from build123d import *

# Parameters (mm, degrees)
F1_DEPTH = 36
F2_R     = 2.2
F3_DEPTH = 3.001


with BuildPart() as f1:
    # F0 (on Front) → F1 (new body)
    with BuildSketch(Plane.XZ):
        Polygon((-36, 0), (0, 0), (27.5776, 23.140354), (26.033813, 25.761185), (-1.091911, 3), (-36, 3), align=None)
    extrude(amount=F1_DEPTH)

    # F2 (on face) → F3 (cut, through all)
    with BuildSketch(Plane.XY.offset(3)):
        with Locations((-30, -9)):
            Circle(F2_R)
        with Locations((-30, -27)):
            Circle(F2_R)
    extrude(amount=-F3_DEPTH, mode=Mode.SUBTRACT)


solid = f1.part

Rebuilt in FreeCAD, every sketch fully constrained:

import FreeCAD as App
import Part
import Sketcher
Q = App.Units.Quantity

doc = App.newDocument("Part")
body = doc.addObject("PartDesign::Body", "Body")

sketch1 = body.newObject("Sketcher::SketchObject", "Sketch")
sketch1.AttachmentSupport = (doc.getObject("XZ_Plane"), [""])
sketch1.MapMode = "FlatFace"
sketch1.addGeometry([
    Part.LineSegment(App.Vector(-36, 0, 0), App.Vector(0, 0, 0)),
    Part.LineSegment(App.Vector(0, 0, 0), App.Vector(27.5776, 23.140354, 0)),
    Part.LineSegment(App.Vector(27.5776, 23.140354, 0), App.Vector(26.033813, 25.761185, 0)),
    Part.LineSegment(App.Vector(26.033813, 25.761185, 0), App.Vector(-1.091911, 3, 0)),
    Part.LineSegment(App.Vector(-1.091911, 3, 0), App.Vector(-36, 3, 0)),
    Part.LineSegment(App.Vector(-36, 3, 0), App.Vector(-36, 0, 0)),
], False)
sketch1.addConstraint([
    Sketcher.Constraint("Coincident", 0, 2, 1, 1),
    Sketcher.Constraint("Coincident", 1, 2, 2, 1),
    Sketcher.Constraint("Coincident", 2, 2, 3, 1),
    Sketcher.Constraint("Coincident", 3, 2, 4, 1),
    Sketcher.Constraint("Coincident", 4, 2, 5, 1),
    Sketcher.Constraint("Coincident", 5, 2, 0, 1),
    Sketcher.Constraint("Horizontal", 0),
    Sketcher.Constraint("Horizontal", 4),
    Sketcher.Constraint("Vertical", 5),
    Sketcher.Constraint("Coincident", 0, 2, -1, 1),
    Sketcher.Constraint("Parallel", 1, 3),
    Sketcher.Constraint("DistanceX", 0, 1, 0, 2, 36.0),
    Sketcher.Constraint("DistanceY", 5, 2, 5, 1, 3.0),
    Sketcher.Constraint("Angle", 1, Q("40 deg")),
    Sketcher.Constraint("Distance", 1, 36.0),
    Sketcher.Constraint("Angle", 2, Q("120.499993 deg")),
    Sketcher.Constraint("DistanceX", 4, 2, 4, 1, 34.908089),
])
pad1 = body.newObject("PartDesign::Pad", "Pad")
pad1.Profile = sketch1
pad1.Length = 36

sketch2 = body.newObject("Sketcher::SketchObject", "Sketch001")
sketch2.AttachmentSupport = (doc.getObject("XY_Plane"), [""])
sketch2.MapMode = "FlatFace"
sketch2.AttachmentOffset = App.Placement(App.Vector(0, 0, 3), App.Rotation())
sketch2.addGeometry([
    Part.Circle(App.Vector(-30, -9, 0), App.Vector(0, 0, 1), 2.2),
    Part.Circle(App.Vector(-30, -27, 0), App.Vector(0, 0, 1), 2.2),
], False)
sketch2.addConstraint([
    Sketcher.Constraint("Equal", 0, 1),
    Sketcher.Constraint("Vertical", 0, 3, 1, 3),
    Sketcher.Constraint("Diameter", 0, 4.4),
    Sketcher.Constraint("DistanceX", 0, 3, -1, 1, 30.0),
    Sketcher.Constraint("DistanceY", 0, 3, -1, 1, 9.0),
    Sketcher.Constraint("DistanceY", 1, 3, -1, 1, 27.0),
])
pocket1 = body.newObject("PartDesign::Pocket", "Pocket")
pocket1.Profile = sketch2
pocket1.Type = "ThroughAll"

doc.recompute()
